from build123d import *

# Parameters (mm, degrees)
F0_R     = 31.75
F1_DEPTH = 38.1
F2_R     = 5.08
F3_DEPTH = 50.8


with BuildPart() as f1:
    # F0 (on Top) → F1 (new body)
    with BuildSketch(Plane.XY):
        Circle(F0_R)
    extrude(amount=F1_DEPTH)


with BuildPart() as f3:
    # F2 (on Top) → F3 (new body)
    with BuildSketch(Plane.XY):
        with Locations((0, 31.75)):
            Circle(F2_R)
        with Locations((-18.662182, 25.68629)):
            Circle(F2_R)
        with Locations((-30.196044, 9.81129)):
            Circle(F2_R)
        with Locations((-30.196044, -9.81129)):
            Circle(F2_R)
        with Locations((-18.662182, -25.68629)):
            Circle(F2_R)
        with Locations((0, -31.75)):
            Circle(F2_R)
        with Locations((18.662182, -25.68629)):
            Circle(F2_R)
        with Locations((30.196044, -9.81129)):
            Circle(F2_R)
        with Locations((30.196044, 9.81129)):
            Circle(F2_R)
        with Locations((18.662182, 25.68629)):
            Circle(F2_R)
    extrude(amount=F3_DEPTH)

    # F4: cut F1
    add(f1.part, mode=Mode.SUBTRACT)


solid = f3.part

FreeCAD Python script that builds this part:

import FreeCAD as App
import Part
import Sketcher

V = App.Vector
Q = App.Units.Quantity

doc = App.newDocument("Part")
body = doc.addObject("PartDesign::Body", "Body")

# Sketch on XY plane
sketch1 = body.newObject("Sketcher::SketchObject", "Sketch")
sketch1.AttachmentSupport = (doc.getObject("XY_Plane"), [""])
sketch1.MapMode = "FlatFace"
sketch1.addGeometry(Part.Circle(V(0, 0, 0), V(0, 0, 1), 32), False)
sketch1.addConstraint(Sketcher.Constraint("Coincident", 0, 3, -1, 1))
sketch1.addConstraint(Sketcher.Constraint("Diameter", 0, Q("2.5 in")))
pad1 = body.newObject("PartDesign::Pad", "Pad")
pad1.Profile = sketch1
pad1.Length = Q("1.5 in")
body2 = doc.addObject("PartDesign::Body", "Body001")
body2.AllowCompound = True

# Sketch on XY plane
sketch2 = body2.newObject("Sketcher::SketchObject", "Sketch001")
sketch2.AttachmentSupport = (doc.getObject("XY_Plane001"), [""])
sketch2.MapMode = "FlatFace"
sketch2.addGeometry(Part.Circle(V(0, 32, 0), V(0, 0, 1), 5), False)
sketch2.addGeometry(Part.Circle(V(-19, 26, 0), V(0, 0, 1), 5), False)
sketch2.addGeometry(Part.Circle(V(-30, 10, 0), V(0, 0, 1), 5), False)
sketch2.addGeometry(Part.Circle(V(-30, -10, 0), V(0, 0, 1), 5), False)
sketch2.addGeometry(Part.Circle(V(-19, -26, 0), V(0, 0, 1), 5), False)
sketch2.addGeometry(Part.Circle(V(0, -32, 0), V(0, 0, 1), 5), False)
sketch2.addGeometry(Part.Circle(V(19, -26, 0), V(0, 0, 1), 5), False)
sketch2.addGeometry(Part.Circle(V(30, -10, 0), V(0, 0, 1), 5), False)
sketch2.addGeometry(Part.Circle(V(30, 10, 0), V(0, 0, 1), 5), False)
sketch2.addGeometry(Part.Circle(V(19, 26, 0), V(0, 0, 1), 5), False)
sketch2.addConstraint(Sketcher.Constraint("Equal", 0, 1))
sketch2.addConstraint(Sketcher.Constraint("Equal", 1, 2))
sketch2.addConstraint(Sketcher.Constraint("Equal", 2, 3))
sketch2.addConstraint(Sketcher.Constraint("Equal", 3, 4))
sketch2.addConstraint(Sketcher.Constraint("Equal", 4, 5))
sketch2.addConstraint(Sketcher.Constraint("Equal", 5, 6))
sketch2.addConstraint(Sketcher.Constraint("Equal", 6, 7))
sketch2.addConstraint(Sketcher.Constraint("Equal", 7, 8))
sketch2.addConstraint(Sketcher.Constraint("Equal", 8, 9))
sketch2.addConstraint(Sketcher.Constraint("Symmetric", 0, 3, 5, 3, -1, 1))
sketch2.addConstraint(Sketcher.Constraint("Symmetric", 1, 3, 6, 3, -1, 1))
sketch2.addConstraint(Sketcher.Constraint("Symmetric", 2, 3, 7, 3, -1, 1))
sketch2.addConstraint(Sketcher.Constraint("Symmetric", 3, 3, 8, 3, -1, 1))
sketch2.addConstraint(Sketcher.Constraint("Symmetric", 4, 3, 9, 3, -1, 1))
sketch2.addConstraint(Sketcher.Constraint("Symmetric", 4, 3, 6, 3, -2))
sketch2.addConstraint(Sketcher.Constraint("Symmetric", 3, 3, 7, 3, -2))
sketch2.addConstraint(Sketcher.Constraint("PointOnObject", 0, 3, -2))
sketch2.addConstraint(Sketcher.Constraint("Diameter", 0, Q("0.4 in")))
sketch2.addConstraint(Sketcher.Constraint("DistanceY", 5, 3, 0, 3, Q("2.5 in")))
sketch2.addConstraint(Sketcher.Constraint("DistanceY", 2, 3, 1, 3, Q("0.625 in")))
sketch2.addConstraint(Sketcher.Constraint("DistanceY", -1, 1, 1, 3, 25.68629))
sketch2.addConstraint(Sketcher.Constraint("DistanceX", 2, 3, 1, 3, 11.533862))
sketch2.addConstraint(Sketcher.Constraint("DistanceX", 1, 3, -1, 1, 18.662182))
pad2 = body2.newObject("PartDesign::Pad", "Pad001")
pad2.Profile = sketch2
pad2.Length = Q("2 in")
doc.recompute()

boolean = body2.newObject("PartDesign::Boolean", "Boolean")
boolean.Type = "Cut"
boolean.addObjects([body])

doc.recompute()
